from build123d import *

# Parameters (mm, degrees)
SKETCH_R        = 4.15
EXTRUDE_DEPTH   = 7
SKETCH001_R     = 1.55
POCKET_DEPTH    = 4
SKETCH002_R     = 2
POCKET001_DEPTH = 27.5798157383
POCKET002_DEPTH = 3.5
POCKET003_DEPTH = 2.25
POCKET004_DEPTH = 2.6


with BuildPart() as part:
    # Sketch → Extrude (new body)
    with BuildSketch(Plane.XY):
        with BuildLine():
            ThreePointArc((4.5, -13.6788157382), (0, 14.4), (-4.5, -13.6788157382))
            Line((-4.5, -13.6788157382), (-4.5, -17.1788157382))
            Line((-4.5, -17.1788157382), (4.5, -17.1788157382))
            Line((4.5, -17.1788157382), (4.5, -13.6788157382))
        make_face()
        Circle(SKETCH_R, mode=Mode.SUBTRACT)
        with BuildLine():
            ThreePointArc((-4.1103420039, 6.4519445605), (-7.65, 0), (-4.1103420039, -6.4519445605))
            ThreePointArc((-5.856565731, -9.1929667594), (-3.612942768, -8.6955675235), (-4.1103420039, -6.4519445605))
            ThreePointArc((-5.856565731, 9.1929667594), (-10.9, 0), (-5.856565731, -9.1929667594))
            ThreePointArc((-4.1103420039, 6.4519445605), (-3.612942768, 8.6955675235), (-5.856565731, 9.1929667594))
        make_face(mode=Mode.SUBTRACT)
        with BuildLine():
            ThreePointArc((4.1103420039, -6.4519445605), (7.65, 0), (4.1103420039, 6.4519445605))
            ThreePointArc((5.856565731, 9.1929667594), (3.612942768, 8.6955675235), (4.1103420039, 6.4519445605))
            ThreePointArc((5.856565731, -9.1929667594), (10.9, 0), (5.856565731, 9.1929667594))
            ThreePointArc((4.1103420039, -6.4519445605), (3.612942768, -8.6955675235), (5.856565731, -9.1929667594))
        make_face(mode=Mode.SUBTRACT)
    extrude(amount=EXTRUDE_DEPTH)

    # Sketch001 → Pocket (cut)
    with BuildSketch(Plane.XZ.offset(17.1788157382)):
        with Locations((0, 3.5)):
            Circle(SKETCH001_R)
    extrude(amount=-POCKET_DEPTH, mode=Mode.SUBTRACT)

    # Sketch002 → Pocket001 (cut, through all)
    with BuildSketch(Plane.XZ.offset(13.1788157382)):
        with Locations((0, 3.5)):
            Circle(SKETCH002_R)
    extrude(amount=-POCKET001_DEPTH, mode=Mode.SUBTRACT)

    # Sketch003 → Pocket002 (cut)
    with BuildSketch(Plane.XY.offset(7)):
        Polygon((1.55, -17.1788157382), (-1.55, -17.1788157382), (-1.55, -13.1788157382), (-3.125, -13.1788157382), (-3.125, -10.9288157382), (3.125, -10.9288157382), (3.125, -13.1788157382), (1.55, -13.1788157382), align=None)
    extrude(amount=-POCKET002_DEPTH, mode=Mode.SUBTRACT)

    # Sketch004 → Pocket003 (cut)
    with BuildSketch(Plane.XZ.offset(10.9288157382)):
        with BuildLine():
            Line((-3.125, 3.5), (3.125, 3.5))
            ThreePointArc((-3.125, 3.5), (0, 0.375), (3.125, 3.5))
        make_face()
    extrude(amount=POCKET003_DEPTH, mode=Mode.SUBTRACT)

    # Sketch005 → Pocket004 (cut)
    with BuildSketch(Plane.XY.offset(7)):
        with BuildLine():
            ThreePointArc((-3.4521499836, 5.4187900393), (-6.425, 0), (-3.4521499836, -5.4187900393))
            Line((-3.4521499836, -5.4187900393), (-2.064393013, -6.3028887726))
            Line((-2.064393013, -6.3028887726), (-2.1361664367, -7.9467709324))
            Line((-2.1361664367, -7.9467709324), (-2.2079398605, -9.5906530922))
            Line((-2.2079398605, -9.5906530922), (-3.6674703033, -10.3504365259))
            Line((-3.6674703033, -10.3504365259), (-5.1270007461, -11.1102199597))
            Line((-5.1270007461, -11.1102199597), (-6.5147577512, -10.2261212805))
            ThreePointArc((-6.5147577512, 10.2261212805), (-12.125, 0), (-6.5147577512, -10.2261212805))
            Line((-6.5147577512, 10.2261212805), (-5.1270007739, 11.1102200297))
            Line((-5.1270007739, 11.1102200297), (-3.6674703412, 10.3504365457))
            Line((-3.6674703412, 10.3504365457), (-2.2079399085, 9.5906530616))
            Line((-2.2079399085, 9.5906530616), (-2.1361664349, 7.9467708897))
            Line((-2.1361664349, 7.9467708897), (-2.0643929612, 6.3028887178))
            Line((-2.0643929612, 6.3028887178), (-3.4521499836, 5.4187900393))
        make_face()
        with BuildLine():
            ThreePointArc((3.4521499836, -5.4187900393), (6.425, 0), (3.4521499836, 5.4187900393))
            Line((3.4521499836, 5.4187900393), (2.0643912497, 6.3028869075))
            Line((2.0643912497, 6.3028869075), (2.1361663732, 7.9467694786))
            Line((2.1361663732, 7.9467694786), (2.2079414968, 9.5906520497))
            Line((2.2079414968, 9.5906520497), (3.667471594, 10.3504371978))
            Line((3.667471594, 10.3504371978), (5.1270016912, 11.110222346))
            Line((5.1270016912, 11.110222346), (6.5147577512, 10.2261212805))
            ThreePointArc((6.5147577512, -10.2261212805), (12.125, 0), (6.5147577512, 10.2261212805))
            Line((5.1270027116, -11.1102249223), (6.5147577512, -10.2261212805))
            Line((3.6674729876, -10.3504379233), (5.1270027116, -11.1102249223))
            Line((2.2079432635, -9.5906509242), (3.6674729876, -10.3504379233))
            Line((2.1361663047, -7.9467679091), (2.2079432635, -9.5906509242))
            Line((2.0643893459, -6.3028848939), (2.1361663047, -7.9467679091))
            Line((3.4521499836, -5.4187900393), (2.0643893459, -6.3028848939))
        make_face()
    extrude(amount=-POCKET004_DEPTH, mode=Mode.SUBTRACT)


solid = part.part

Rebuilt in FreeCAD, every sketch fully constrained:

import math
import FreeCAD as App
import Part
import Sketcher
Q = App.Units.Quantity


def add_polygon(sketch, points):
    """Adds a closed chain of lines whose ends are joined by coincident constraints."""
    first, n = sketch.GeometryCount, len(points)
    for a, b in zip(points, points[1:] + points[:1]):
        sketch.addGeometry(Part.LineSegment(App.Vector(*a, 0), App.Vector(*b, 0)), False)
    for i in range(n):
        sketch.addConstraint(Sketcher.Constraint("Coincident", first + i, 2, first + (i + 1) % n, 1))

doc = App.newDocument("Part")
body = doc.addObject("PartDesign::Body", "Body")

sketch1 = body.newObject("Sketcher::SketchObject", "Sketch")
sketch1.AttachmentSupport = (doc.getObject("XY_Plane"), [""])
sketch1.MapMode = "FlatFace"
sketch1.addGeometry([
    Part.ArcOfCircle(Part.Circle(App.Vector(0, 0, 0), App.Vector(0, 0, 1), 14.4), math.radians(-72), math.radians(252)),
    Part.LineSegment(App.Vector(-4.5, -13.7, 0), App.Vector(-4.5, -17.2, 0)),
    Part.LineSegment(App.Vector(-4.5, -17.2, 0), App.Vector(4.5, -17.2, 0)),
    Part.LineSegment(App.Vector(4.5, -17.2, 0), App.Vector(4.5, -13.7, 0)),
    Part.ArcOfCircle(Part.Circle(App.Vector(-5, 7.8, 0), App.Vector(0, 0, 1), 1.6), math.radians(-58), math.radians(123)),
    Part.ArcOfCircle(Part.Circle(App.Vector(0, 0, 0), App.Vector(0, 0, 1), 7.7), math.radians(122), math.radians(238)),
    Part.ArcOfCircle(Part.Circle(App.Vector(-5, -7.8, 0), App.Vector(0, 0, 1), 1.6), math.radians(-123), math.radians(58)),
    Part.ArcOfCircle(Part.Circle(App.Vector(0, 0, 0), App.Vector(0, 0, 1), 10.9), math.radians(123), math.radians(237)),
    Part.Circle(App.Vector(0, 0, 0), App.Vector(0, 0, 1), 4.2),
    Part.ArcOfCircle(Part.Circle(App.Vector(5, -7.8, 0), App.Vector(0, 0, 1), 1.6), math.radians(122), math.radians(303)),
    Part.ArcOfCircle(Part.Circle(App.Vector(0, 0, 0), App.Vector(0, 0, 1), 7.7), math.radians(-58), math.radians(58)),
    Part.ArcOfCircle(Part.Circle(App.Vector(5, 7.8, 0), App.Vector(0, 0, 1), 1.6), math.radians(57), math.radians(238)),
    Part.ArcOfCircle(Part.Circle(App.Vector(0, 0, 0), App.Vector(0, 0, 1), 10.9), math.radians(-57), math.radians(57)),
], False)
sketch1.addConstraint([
    Sketcher.Constraint("Coincident", 0, 2, 1, 1),
    Sketcher.Constraint("Coincident", 1, 2, 2, 1),
    Sketcher.Constraint("Coincident", 2, 2, 3, 1),
    Sketcher.Constraint("Coincident", 3, 2, 0, 1),
    Sketcher.Constraint("Tangent", 4, 1, 5, 1),
    Sketcher.Constraint("Tangent", 5, 2, 6, 2),
    Sketcher.Constraint("Tangent", 6, 1, 7, 2),
    Sketcher.Constraint("Tangent", 7, 1, 4, 2),
    Sketcher.Constraint("Tangent", 9, 1, 10, 1),
    Sketcher.Constraint("Tangent", 10, 2, 11, 2),
    Sketcher.Constraint("Tangent", 11, 1, 12, 2),
    Sketcher.Constraint("Tangent", 12, 1, 9, 2),
    Sketcher.Constraint("Vertical", 1),
    Sketcher.Constraint("Horizontal", 2),
    Sketcher.Constraint("Vertical", 3),
    Sketcher.Constraint("Coincident", 0, 3, -1, 1),
    Sketcher.Constraint("Coincident", 5, 3, -1, 1),
    Sketcher.Constraint("Coincident", 7, 3, -1, 1),
    Sketcher.Constraint("Coincident", 8, 3, -1, 1),
    Sketcher.Constraint("Coincident", 10, 3, -1, 1),
    Sketcher.Constraint("Coincident", 12, 3, -1, 1),
    Sketcher.Constraint("Equal", 6, 9),
    Sketcher.Constraint("Equal", 5, 10),
    Sketcher.Constraint("Horizontal", 6, 3, 9, 3),
    Sketcher.Constraint("Horizontal", 4, 3, 11, 3),
    Sketcher.Constraint("Horizontal", 0, 2, 3, 2),
    Sketcher.Constraint("Vertical", 4, 3, 6, 3),
    Sketcher.Constraint("Diameter", 8, Q("8.3 mm")),
    Sketcher.Constraint("Radius", 0, Q("14.4 mm")),
    Sketcher.Constraint("Radius", 7, Q("10.9 mm")),
    Sketcher.Constraint("DistanceX", 2, 1, 2, 2, Q("9 mm")),
    Sketcher.Constraint("Radius", 5, Q("7.65 mm")),
    Sketcher.Constraint("DistanceY", 1, 2, 1, 1, Q("3.5 mm")),
    Sketcher.Constraint("DistanceY", 6, 3, 4, 3, Q("15.644911 mm")),
])
pad1 = body.newObject("PartDesign::Pad", "Pad")
pad1.Profile = sketch1
pad1.Length = 7

sketch2 = body.newObject("Sketcher::SketchObject", "Sketch001")
sketch2.AttachmentSupport = (doc.getObject("XZ_Plane"), [""])
sketch2.MapMode = "FlatFace"
sketch2.AttachmentOffset = App.Placement(App.Vector(0, 0, 17.178816), App.Rotation())
sketch2.addGeometry(Part.Circle(App.Vector(0, 3.5, 0), App.Vector(0, 0, 1), 1.6), False)
sketch2.addConstraint([
    Sketcher.Constraint("PointOnObject", 0, 3, -2),
    Sketcher.Constraint("Diameter", 0, Q("3.1 mm")),
    Sketcher.Constraint("DistanceY", -1, 1, 0, 3, Q("3.5 mm")),
])
pocket1 = body.newObject("PartDesign::Pocket", "Pocket")
pocket1.Profile = sketch2
pocket1.Length = 4

sketch3 = body.newObject("Sketcher::SketchObject", "Sketch002")
sketch3.AttachmentSupport = (doc.getObject("XZ_Plane"), [""])
sketch3.MapMode = "FlatFace"
sketch3.AttachmentOffset = App.Placement(App.Vector(0, 0, 13.178816), App.Rotation())
sketch3.addGeometry(Part.Circle(App.Vector(0, 3.5, 0), App.Vector(0, 0, 1), 2), False)
sketch3.addConstraint([
    Sketcher.Constraint("PointOnObject", 0, 3, -2),
    Sketcher.Constraint("Diameter", 0, Q("4 mm")),
    Sketcher.Constraint("DistanceY", -1, 1, 0, 3, Q("3.5 mm")),
])
pocket2 = body.newObject("PartDesign::Pocket", "Pocket001")
pocket2.Profile = sketch3
pocket2.Type = "ThroughAll"

sketch4 = body.newObject("Sketcher::SketchObject", "Sketch003")
sketch4.AttachmentSupport = (doc.getObject("XY_Plane"), [""])
sketch4.MapMode = "FlatFace"
sketch4.AttachmentOffset = App.Placement(App.Vector(0, 0, 7), App.Rotation())
add_polygon(sketch4, [(-1.6, -17.2), (1.6, -17.2), (1.6, -13.2), (3.1, -13.2), (3.1, -10.9), (-3.1, -10.9), (-3.1, -13.2), (-1.6, -13.2)])
sketch4.addConstraint([
    Sketcher.Constraint("Horizontal", 0),
    Sketcher.Constraint("Vertical", 1),
    Sketcher.Constraint("Horizontal", 2),
    Sketcher.Constraint("Vertical", 3),
    Sketcher.Constraint("Horizontal", 4),
    Sketcher.Constraint("Vertical", 5),
    Sketcher.Constraint("Horizontal", 6),
    Sketcher.Constraint("Vertical", 7),
    Sketcher.Constraint("Symmetric", 2, 2, 5, 2, -2),
    Sketcher.Constraint("Equal", 2, 6),
    Sketcher.Constraint("DistanceY", 1, 1, 1, 2, Q("4 mm")),
    Sketcher.Constraint("DistanceX", 0, 1, 0, 2, Q("3.1 mm")),
    Sketcher.Constraint("DistanceX", 4, 2, 4, 1, Q("6.25 mm")),
    Sketcher.Constraint("DistanceY", 3, 1, 3, 2, Q("2.25 mm")),
    Sketcher.Constraint("DistanceY", 0, 2, -1, 1, Q("17.178816 mm")),
])
pocket3 = body.newObject("PartDesign::Pocket", "Pocket002")
pocket3.Profile = sketch4
pocket3.Length = 3.5

sketch5 = body.newObject("Sketcher::SketchObject", "Sketch004")
sketch5.AttachmentSupport = (doc.getObject("XZ_Plane"), [""])
sketch5.MapMode = "FlatFace"
sketch5.AttachmentOffset = App.Placement(App.Vector(0, 0, 10.928816), App.Rotation())
sketch5.addGeometry([
    Part.LineSegment(App.Vector(3.1, 3.5, 0), App.Vector(-3.1, 3.5, 0)),
    Part.ArcOfCircle(Part.Circle(App.Vector(0, 3.5, 0), App.Vector(0, 0, 1), 3.1), math.radians(180), math.radians(360)),
], False)
sketch5.addConstraint([
    Sketcher.Constraint("Coincident", 0, 1, 1, 2),
    Sketcher.Constraint("Coincident", 1, 1, 0, 2),
    Sketcher.Constraint("Horizontal", 0),
    Sketcher.Constraint("PointOnObject", 1, 3, -2),
    Sketcher.Constraint("Horizontal", 1, 3, 0, 1),
    Sketcher.Constraint("Radius", 1, Q("3.125 mm")),
    Sketcher.Constraint("DistanceY", -1, 1, 1, 3, Q("3.5 mm")),
])
pocket4 = body.newObject("PartDesign::Pocket", "Pocket003")
pocket4.Profile = sketch5
pocket4.Length = 2.25
pocket4.Reversed = True

sketch6 = body.newObject("Sketcher::SketchObject", "Sketch005")
sketch6.AttachmentSupport = (doc.getObject("XY_Plane"), [""])
sketch6.MapMode = "FlatFace"
sketch6.AttachmentOffset = App.Placement(App.Vector(0, 0, 7), App.Rotation())
sketch6.addGeometry([
    Part.ArcOfCircle(Part.Circle(App.Vector(0, 0, 0), App.Vector(0, 0, 1), 6.4), math.radians(123), math.radians(237)),
    Part.LineSegment(App.Vector(-3.5, 5.4, 0), App.Vector(-2.1, 6.3, 0)),
    Part.LineSegment(App.Vector(-2.1, 6.3, 0), App.Vector(-2.1, 7.9, 0)),
    Part.LineSegment(App.Vector(-2.1, 7.9, 0), App.Vector(-2.2, 9.6, 0)),
    Part.LineSegment(App.Vector(-2.2, 9.6, 0), App.Vector(-3.7, 10.4, 0)),
    Part.LineSegment(App.Vector(-3.7, 10.4, 0), App.Vector(-5.1, 11.1, 0)),
    Part.LineSegment(App.Vector(-5.1, 11.1, 0), App.Vector(-6.5, 10.2, 0)),
    Part.ArcOfCircle(Part.Circle(App.Vector(0, 0, 0), App.Vector(0, 0, 1), 12.1), math.radians(122), math.radians(238)),
    Part.LineSegment(App.Vector(-6.5, -10.2, 0), App.Vector(-5.1, -11.1, 0)),
    Part.LineSegment(App.Vector(-5.1, -11.1, 0), App.Vector(-3.7, -10.4, 0)),
    Part.LineSegment(App.Vector(-3.7, -10.4, 0), App.Vector(-2.2, -9.6, 0)),
    Part.LineSegment(App.Vector(-2.2, -9.6, 0), App.Vector(-2.1, -7.9, 0)),
    Part.LineSegment(App.Vector(-2.1, -7.9, 0), App.Vector(-2.1, -6.3, 0)),
    Part.LineSegment(App.Vector(-2.1, -6.3, 0), App.Vector(-3.5, -5.4, 0)),
    Part.ArcOfCircle(Part.Circle(App.Vector(0, 0, 0), App.Vector(0, 0, 1), 6.4), math.radians(-57), math.radians(57)),
    Part.LineSegment(App.Vector(3.5, -5.4, 0), App.Vector(2.1, -6.3, 0)),
    Part.LineSegment(App.Vector(2.1, -6.3, 0), App.Vector(2.1, -7.9, 0)),
    Part.LineSegment(App.Vector(2.1, -7.9, 0), App.Vector(2.2, -9.6, 0)),
    Part.LineSegment(App.Vector(2.2, -9.6, 0), App.Vector(3.7, -10.4, 0)),
    Part.LineSegment(App.Vector(3.7, -10.4, 0), App.Vector(5.1, -11.1, 0)),
    Part.LineSegment(App.Vector(5.1, -11.1, 0), App.Vector(6.5, -10.2, 0)),
    Part.ArcOfCircle(Part.Circle(App.Vector(0, 0, 0), App.Vector(0, 0, 1), 12.1), math.radians(-58), math.radians(58)),
    Part.LineSegment(App.Vector(6.5, 10.2, 0), App.Vector(5.1, 11.1, 0)),
    Part.LineSegment(App.Vector(5.1, 11.1, 0), App.Vector(3.7, 10.4, 0)),
    Part.LineSegment(App.Vector(3.7, 10.4, 0), App.Vector(2.2, 9.6, 0)),
    Part.LineSegment(App.Vector(2.2, 9.6, 0), App.Vector(2.1, 7.9, 0)),
    Part.LineSegment(App.Vector(2.1, 7.9, 0), App.Vector(2.1, 6.3, 0)),
    Part.LineSegment(App.Vector(2.1, 6.3, 0), App.Vector(3.5, 5.4, 0)),
], False)
sketch6.addConstraint([
    Sketcher.Constraint("Tangent", 0, 1, 1, 1),
    Sketcher.Constraint("Coincident", 1, 2, 2, 1),
    Sketcher.Constraint("Coincident", 2, 2, 3, 1),
    Sketcher.Constraint("Coincident", 3, 2, 4, 1),
    Sketcher.Constraint("Coincident", 4, 2, 5, 1),
    Sketcher.Constraint("Coincident", 5, 2, 6, 1),
    Sketcher.Constraint("Tangent", 6, 2, 7, 1),
    Sketcher.Constraint("Tangent", 7, 2, 8, 1),
    Sketcher.Constraint("Coincident", 8, 2, 9, 1),
    Sketcher.Constraint("Coincident", 9, 2, 10, 1),
    Sketcher.Constraint("Coincident", 10, 2, 11, 1),
    Sketcher.Constraint("Coincident", 11, 2, 12, 1),
    Sketcher.Constraint("Coincident", 12, 2, 13, 1),
    Sketcher.Constraint("Tangent", 13, 2, 0, 2),
    Sketcher.Constraint("Coincident", 14, 1, 15, 1),
    Sketcher.Constraint("Coincident", 15, 2, 16, 1),
    Sketcher.Constraint("Coincident", 16, 2, 17, 1),
    Sketcher.Constraint("Coincident", 17, 2, 18, 1),
    Sketcher.Constraint("Coincident", 18, 2, 19, 1),
    Sketcher.Constraint("Coincident", 19, 2, 20, 1),
    Sketcher.Constraint("Coincident", 20, 2, 21, 1),
    Sketcher.Constraint("Tangent", 21, 2, 22, 1),
    Sketcher.Constraint("Coincident", 22, 2, 23, 1),
    Sketcher.Constraint("Coincident", 23, 2, 24, 1),
    Sketcher.Constraint("Coincident", 24, 2, 25, 1),
    Sketcher.Constraint("Coincident", 25, 2, 26, 1),
    Sketcher.Constraint("Coincident", 26, 2, 27, 1),
    Sketcher.Constraint("Tangent", 27, 2, 14, 2),
    Sketcher.Constraint("Coincident", 0, 3, -1, 1),
    Sketcher.Constraint("Coincident", 7, 3, -1, 1),
    Sketcher.Constraint("Coincident", 14, 3, -1, 1),
    Sketcher.Constraint("Coincident", 21, 3, -1, 1),
    Sketcher.Constraint("Equal", 0, 14),
    Sketcher.Constraint("Equal", 7, 21),
    Sketcher.Constraint("Symmetric", 1, 2, 15, 2, -1, 1),
    Sketcher.Constraint("Symmetric", 2, 2, 16, 2, -1, 1),
    Sketcher.Constraint("Symmetric", 3, 2, 17, 2, -1, 1),
    Sketcher.Constraint("Symmetric", 4, 2, 18, 2, -1, 1),
    Sketcher.Constraint("Symmetric", 5, 2, 19, 2, -1, 1),
    Sketcher.Constraint("Symmetric", 8, 2, 22, 2, -1, 1),
    Sketcher.Constraint("Symmetric", 9, 2, 23, 2, -1, 1),
    Sketcher.Constraint("Symmetric", 10, 2, 24, 2, -1, 1),
    Sketcher.Constraint("Symmetric", 11, 2, 25, 2, -1, 1),
    Sketcher.Constraint("Symmetric", 12, 2, 26, 2, -1, 1),
    Sketcher.Constraint("Symmetric", 12, 2, 15, 2, -2),
    Sketcher.Constraint("Symmetric", 11, 2, 16, 2, -2),
    Sketcher.Constraint("Symmetric", 10, 2, 17, 2, -2),
    Sketcher.Constraint("Symmetric", 9, 2, 18, 2, -2),
    Sketcher.Constraint("Symmetric", 8, 2, 19, 2, -2),
    Sketcher.Constraint("Parallel", 2, 3),
    Sketcher.Constraint("Parallel", 4, 5),
    Sketcher.Constraint("Parallel", 1, 6),
    Sketcher.Constraint("Horizontal", 13, 2, 14, 1),
    Sketcher.Constraint("Horizontal", 7, 2, 20, 2),
    Sketcher.Constraint("Equal", 1, 2),
    Sketcher.Constraint("Equal", 2, 3),
    Sketcher.Constraint("Equal", 3, 4),
    Sketcher.Constraint("Equal", 4, 5),
    Sketcher.Constraint("Equal", 5, 6),
    Sketcher.Constraint("Angle", 1, Q("32.499999 deg")),
    Sketcher.Constraint("Angle", 2, Q("92.500001 deg")),
    Sketcher.Constraint("Radius", 0, Q("6.425 mm")),
    Sketcher.Constraint("Radius", 7, Q("12.125 mm")),
])
pocket5 = body.newObject("PartDesign::Pocket", "Pocket004")
pocket5.Profile = sketch6
pocket5.Length = 2.6

doc.recompute()
